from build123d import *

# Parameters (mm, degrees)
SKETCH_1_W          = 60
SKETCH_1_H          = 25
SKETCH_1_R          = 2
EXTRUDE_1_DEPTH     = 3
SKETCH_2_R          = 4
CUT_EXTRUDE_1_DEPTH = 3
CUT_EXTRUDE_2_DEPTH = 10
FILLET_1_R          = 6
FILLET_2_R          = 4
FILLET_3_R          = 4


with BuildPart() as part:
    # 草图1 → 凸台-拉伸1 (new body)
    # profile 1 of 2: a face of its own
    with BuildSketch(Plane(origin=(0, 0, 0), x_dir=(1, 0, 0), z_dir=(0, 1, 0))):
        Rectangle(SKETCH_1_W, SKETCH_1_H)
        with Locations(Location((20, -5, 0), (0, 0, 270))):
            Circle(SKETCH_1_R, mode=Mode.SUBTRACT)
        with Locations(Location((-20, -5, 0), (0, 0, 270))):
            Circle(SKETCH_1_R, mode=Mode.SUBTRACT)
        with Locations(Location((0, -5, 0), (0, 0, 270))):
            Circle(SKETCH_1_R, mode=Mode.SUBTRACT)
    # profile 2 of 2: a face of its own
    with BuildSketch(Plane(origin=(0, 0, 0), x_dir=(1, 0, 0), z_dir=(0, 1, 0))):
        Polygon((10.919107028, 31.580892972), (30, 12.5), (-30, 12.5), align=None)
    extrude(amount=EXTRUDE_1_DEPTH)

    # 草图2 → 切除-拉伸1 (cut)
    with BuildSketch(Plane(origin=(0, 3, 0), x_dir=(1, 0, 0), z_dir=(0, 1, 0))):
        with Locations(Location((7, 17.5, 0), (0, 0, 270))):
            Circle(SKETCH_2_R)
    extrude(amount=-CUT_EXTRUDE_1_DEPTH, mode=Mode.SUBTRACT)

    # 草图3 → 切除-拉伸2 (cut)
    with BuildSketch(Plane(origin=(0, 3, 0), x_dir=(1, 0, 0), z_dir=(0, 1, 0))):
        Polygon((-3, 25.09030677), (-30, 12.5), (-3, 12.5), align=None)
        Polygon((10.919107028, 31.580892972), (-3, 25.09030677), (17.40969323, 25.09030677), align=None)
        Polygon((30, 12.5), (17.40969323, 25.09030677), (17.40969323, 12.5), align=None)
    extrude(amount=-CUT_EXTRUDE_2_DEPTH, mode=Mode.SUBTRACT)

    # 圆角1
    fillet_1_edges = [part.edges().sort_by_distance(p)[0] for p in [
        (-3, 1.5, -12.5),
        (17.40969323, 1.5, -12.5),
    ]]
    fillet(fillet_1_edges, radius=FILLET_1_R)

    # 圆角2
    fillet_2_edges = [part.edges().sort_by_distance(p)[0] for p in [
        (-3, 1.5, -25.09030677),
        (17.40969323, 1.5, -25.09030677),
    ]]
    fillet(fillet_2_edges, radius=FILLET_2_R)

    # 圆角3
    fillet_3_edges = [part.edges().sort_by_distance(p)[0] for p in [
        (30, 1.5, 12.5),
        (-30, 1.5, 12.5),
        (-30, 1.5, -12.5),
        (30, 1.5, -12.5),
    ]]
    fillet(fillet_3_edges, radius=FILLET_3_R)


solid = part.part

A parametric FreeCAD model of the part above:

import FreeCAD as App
import Part
import Sketcher

V = App.Vector
Q = App.Units.Quantity


def edges_at(feature, points):
    """Names of the edges that pass closest to the given points."""
    edges = feature.Shape.Edges
    near = lambda p: min(range(len(edges)), key=lambda i: edges[i].distToShape(Part.Vertex(*p))[0])
    return sorted({f"Edge{near(p) + 1}" for p in points})


def add_polygon(sketch, points):
    """Adds a closed chain of lines whose ends are joined by coincident constraints."""
    first, n = sketch.GeometryCount, len(points)
    for a, b in zip(points, points[1:] + points[:1]):
        sketch.addGeometry(Part.LineSegment(App.Vector(*a, 0), App.Vector(*b, 0)), False)
    for i in range(n):
        sketch.addConstraint(Sketcher.Constraint("Coincident", first + i, 2, first + (i + 1) % n, 1))

doc = App.newDocument("Part")
body = doc.addObject("PartDesign::Body", "Body")

sketch1 = body.newObject("Sketcher::SketchObject", "Sketch")
sketch1.AttachmentSupport = (doc.getObject("XZ_Plane"), [""])
sketch1.MapMode = "FlatFace"
add_polygon(sketch1, [(-30, -12.5), (-30, 12.5), (30, 12.5), (30, -12.5), (10.9, -31.6)])
sketch1.addGeometry(Part.Circle(V(-20, 5, 0), V(0, 0, 1), 2), False)
sketch1.addGeometry(Part.Circle(V(0, 5, 0), V(0, 0, 1), 2), False)
sketch1.addGeometry(Part.Circle(V(20, 5, 0), V(0, 0, 1), 2), False)
sketch1.addConstraint([
    Sketcher.Constraint("Vertical", 0),
    Sketcher.Constraint("Horizontal", 1),
    Sketcher.Constraint("Vertical", 2),
    Sketcher.Constraint("Equal", 5, 6),
    Sketcher.Constraint("Equal", 6, 7),
    Sketcher.Constraint("Symmetric", 0, 2, 2, 2, -1, 1),
    Sketcher.Constraint("Symmetric", 5, 3, 7, 3, -2),
    Sketcher.Constraint("PointOnObject", 6, 3, -2),
    Sketcher.Constraint("Horizontal", 5, 3, 6, 3),
    Sketcher.Constraint("Horizontal", 2, 2, 4, 2),
    Sketcher.Constraint("Diameter", 5, 4.0),
    Sketcher.Constraint("DistanceX", 1, 1, 1, 2, 60.0),
    Sketcher.Constraint("DistanceY", 0, 1, 0, 2, 25.0),
    Sketcher.Constraint("Angle", 3, Q("-135 deg")),
    Sketcher.Constraint("Angle", 4, Q("155 deg")),
    Sketcher.Constraint("DistanceX", 5, 3, -1, 1, 20.0),
    Sketcher.Constraint("DistanceY", -1, 1, 5, 3, 5.0),
])
pad1 = body.newObject("PartDesign::Pad", "Pad")
pad1.Profile = sketch1
pad1.Length = 3
pad1.Reversed = True

sketch2 = body.newObject("Sketcher::SketchObject", "Sketch001")
sketch2.AttachmentSupport = (doc.getObject("XZ_Plane"), [""])
sketch2.MapMode = "FlatFace"
sketch2.AttachmentOffset = App.Placement(V(0, 0, -3), App.Rotation())
sketch2.addGeometry(Part.Circle(V(7, -17.5, 0), V(0, 0, 1), 4), False)
sketch2.addConstraint([
    Sketcher.Constraint("Diameter", 0, 8.0),
    Sketcher.Constraint("DistanceX", -1, 1, 0, 3, 7.0),
    Sketcher.Constraint("DistanceY", 0, 3, -1, 1, 17.5),
])
pocket1 = body.newObject("PartDesign::Pocket", "Pocket")
pocket1.Profile = sketch2
pocket1.Length = 3
pocket1.Reversed = True

sketch3 = body.newObject("Sketcher::SketchObject", "Sketch002")
sketch3.AttachmentSupport = (doc.getObject("XZ_Plane"), [""])
sketch3.MapMode = "FlatFace"
sketch3.AttachmentOffset = App.Placement(V(0, 0, -3), App.Rotation())
add_polygon(sketch3, [(-3, -25), (-30, -12), (-3, -12)])
add_polygon(sketch3, [(11, -32), (-3, -25), (17, -25)])
add_polygon(sketch3, [(30, -12), (17, -25), (17, -12)])
sketch3.addConstraint([
    Sketcher.Constraint("Horizontal", 1),
    Sketcher.Constraint("Vertical", 2),
    Sketcher.Constraint("Horizontal", 4),
    Sketcher.Constraint("Vertical", 7),
    Sketcher.Constraint("Horizontal", 8),
    Sketcher.Constraint("Coincident", 3, 2, 2, 2),
    Sketcher.Constraint("Coincident", 6, 2, 4, 2),
    Sketcher.Constraint("Symmetric", 0, 2, 8, 2, -2),
    Sketcher.Constraint("Parallel", 0, 3),
    Sketcher.Constraint("Parallel", 5, 6),
    Sketcher.Constraint("Equal", 8, 2),
    Sketcher.Constraint("DistanceX", 1, 1, 1, 2, 27.0),
    Sketcher.Constraint("Angle", 0, Q("155 deg")),
    Sketcher.Constraint("DistanceX", 0, 2, -1, 1, 30.0),
    Sketcher.Constraint("DistanceY", 0, 2, -1, 1, 12.5),
])
pocket2 = body.newObject("PartDesign::Pocket", "Pocket001")
pocket2.Profile = sketch3
pocket2.Length = 10
pocket2.Reversed = True
doc.recompute()

fillet = body.newObject("PartDesign::Fillet", "Fillet")
fillet.Base = (pocket2, edges_at(pocket2, [(-3, 1.5, -12.5), (17.41, 1.5, -12.5)]))
fillet.Radius = 6
doc.recompute()

fillet2 = body.newObject("PartDesign::Fillet", "Fillet001")
fillet2.Base = (fillet, edges_at(fillet, [(-3, 1.5, -25.09), (17.41, 1.5, -25.09)]))
fillet2.Radius = 4
doc.recompute()

fillet3 = body.newObject("PartDesign::Fillet", "Fillet002")
fillet3.Base = (fillet2, edges_at(fillet2, [
    (30, 1.5, 12.5),
    (-30, 1.5, 12.5),
    (-30, 1.5, -12.5),
    (30, 1.5, -12.5),
]))
fillet3.Radius = 4

doc.recompute()
